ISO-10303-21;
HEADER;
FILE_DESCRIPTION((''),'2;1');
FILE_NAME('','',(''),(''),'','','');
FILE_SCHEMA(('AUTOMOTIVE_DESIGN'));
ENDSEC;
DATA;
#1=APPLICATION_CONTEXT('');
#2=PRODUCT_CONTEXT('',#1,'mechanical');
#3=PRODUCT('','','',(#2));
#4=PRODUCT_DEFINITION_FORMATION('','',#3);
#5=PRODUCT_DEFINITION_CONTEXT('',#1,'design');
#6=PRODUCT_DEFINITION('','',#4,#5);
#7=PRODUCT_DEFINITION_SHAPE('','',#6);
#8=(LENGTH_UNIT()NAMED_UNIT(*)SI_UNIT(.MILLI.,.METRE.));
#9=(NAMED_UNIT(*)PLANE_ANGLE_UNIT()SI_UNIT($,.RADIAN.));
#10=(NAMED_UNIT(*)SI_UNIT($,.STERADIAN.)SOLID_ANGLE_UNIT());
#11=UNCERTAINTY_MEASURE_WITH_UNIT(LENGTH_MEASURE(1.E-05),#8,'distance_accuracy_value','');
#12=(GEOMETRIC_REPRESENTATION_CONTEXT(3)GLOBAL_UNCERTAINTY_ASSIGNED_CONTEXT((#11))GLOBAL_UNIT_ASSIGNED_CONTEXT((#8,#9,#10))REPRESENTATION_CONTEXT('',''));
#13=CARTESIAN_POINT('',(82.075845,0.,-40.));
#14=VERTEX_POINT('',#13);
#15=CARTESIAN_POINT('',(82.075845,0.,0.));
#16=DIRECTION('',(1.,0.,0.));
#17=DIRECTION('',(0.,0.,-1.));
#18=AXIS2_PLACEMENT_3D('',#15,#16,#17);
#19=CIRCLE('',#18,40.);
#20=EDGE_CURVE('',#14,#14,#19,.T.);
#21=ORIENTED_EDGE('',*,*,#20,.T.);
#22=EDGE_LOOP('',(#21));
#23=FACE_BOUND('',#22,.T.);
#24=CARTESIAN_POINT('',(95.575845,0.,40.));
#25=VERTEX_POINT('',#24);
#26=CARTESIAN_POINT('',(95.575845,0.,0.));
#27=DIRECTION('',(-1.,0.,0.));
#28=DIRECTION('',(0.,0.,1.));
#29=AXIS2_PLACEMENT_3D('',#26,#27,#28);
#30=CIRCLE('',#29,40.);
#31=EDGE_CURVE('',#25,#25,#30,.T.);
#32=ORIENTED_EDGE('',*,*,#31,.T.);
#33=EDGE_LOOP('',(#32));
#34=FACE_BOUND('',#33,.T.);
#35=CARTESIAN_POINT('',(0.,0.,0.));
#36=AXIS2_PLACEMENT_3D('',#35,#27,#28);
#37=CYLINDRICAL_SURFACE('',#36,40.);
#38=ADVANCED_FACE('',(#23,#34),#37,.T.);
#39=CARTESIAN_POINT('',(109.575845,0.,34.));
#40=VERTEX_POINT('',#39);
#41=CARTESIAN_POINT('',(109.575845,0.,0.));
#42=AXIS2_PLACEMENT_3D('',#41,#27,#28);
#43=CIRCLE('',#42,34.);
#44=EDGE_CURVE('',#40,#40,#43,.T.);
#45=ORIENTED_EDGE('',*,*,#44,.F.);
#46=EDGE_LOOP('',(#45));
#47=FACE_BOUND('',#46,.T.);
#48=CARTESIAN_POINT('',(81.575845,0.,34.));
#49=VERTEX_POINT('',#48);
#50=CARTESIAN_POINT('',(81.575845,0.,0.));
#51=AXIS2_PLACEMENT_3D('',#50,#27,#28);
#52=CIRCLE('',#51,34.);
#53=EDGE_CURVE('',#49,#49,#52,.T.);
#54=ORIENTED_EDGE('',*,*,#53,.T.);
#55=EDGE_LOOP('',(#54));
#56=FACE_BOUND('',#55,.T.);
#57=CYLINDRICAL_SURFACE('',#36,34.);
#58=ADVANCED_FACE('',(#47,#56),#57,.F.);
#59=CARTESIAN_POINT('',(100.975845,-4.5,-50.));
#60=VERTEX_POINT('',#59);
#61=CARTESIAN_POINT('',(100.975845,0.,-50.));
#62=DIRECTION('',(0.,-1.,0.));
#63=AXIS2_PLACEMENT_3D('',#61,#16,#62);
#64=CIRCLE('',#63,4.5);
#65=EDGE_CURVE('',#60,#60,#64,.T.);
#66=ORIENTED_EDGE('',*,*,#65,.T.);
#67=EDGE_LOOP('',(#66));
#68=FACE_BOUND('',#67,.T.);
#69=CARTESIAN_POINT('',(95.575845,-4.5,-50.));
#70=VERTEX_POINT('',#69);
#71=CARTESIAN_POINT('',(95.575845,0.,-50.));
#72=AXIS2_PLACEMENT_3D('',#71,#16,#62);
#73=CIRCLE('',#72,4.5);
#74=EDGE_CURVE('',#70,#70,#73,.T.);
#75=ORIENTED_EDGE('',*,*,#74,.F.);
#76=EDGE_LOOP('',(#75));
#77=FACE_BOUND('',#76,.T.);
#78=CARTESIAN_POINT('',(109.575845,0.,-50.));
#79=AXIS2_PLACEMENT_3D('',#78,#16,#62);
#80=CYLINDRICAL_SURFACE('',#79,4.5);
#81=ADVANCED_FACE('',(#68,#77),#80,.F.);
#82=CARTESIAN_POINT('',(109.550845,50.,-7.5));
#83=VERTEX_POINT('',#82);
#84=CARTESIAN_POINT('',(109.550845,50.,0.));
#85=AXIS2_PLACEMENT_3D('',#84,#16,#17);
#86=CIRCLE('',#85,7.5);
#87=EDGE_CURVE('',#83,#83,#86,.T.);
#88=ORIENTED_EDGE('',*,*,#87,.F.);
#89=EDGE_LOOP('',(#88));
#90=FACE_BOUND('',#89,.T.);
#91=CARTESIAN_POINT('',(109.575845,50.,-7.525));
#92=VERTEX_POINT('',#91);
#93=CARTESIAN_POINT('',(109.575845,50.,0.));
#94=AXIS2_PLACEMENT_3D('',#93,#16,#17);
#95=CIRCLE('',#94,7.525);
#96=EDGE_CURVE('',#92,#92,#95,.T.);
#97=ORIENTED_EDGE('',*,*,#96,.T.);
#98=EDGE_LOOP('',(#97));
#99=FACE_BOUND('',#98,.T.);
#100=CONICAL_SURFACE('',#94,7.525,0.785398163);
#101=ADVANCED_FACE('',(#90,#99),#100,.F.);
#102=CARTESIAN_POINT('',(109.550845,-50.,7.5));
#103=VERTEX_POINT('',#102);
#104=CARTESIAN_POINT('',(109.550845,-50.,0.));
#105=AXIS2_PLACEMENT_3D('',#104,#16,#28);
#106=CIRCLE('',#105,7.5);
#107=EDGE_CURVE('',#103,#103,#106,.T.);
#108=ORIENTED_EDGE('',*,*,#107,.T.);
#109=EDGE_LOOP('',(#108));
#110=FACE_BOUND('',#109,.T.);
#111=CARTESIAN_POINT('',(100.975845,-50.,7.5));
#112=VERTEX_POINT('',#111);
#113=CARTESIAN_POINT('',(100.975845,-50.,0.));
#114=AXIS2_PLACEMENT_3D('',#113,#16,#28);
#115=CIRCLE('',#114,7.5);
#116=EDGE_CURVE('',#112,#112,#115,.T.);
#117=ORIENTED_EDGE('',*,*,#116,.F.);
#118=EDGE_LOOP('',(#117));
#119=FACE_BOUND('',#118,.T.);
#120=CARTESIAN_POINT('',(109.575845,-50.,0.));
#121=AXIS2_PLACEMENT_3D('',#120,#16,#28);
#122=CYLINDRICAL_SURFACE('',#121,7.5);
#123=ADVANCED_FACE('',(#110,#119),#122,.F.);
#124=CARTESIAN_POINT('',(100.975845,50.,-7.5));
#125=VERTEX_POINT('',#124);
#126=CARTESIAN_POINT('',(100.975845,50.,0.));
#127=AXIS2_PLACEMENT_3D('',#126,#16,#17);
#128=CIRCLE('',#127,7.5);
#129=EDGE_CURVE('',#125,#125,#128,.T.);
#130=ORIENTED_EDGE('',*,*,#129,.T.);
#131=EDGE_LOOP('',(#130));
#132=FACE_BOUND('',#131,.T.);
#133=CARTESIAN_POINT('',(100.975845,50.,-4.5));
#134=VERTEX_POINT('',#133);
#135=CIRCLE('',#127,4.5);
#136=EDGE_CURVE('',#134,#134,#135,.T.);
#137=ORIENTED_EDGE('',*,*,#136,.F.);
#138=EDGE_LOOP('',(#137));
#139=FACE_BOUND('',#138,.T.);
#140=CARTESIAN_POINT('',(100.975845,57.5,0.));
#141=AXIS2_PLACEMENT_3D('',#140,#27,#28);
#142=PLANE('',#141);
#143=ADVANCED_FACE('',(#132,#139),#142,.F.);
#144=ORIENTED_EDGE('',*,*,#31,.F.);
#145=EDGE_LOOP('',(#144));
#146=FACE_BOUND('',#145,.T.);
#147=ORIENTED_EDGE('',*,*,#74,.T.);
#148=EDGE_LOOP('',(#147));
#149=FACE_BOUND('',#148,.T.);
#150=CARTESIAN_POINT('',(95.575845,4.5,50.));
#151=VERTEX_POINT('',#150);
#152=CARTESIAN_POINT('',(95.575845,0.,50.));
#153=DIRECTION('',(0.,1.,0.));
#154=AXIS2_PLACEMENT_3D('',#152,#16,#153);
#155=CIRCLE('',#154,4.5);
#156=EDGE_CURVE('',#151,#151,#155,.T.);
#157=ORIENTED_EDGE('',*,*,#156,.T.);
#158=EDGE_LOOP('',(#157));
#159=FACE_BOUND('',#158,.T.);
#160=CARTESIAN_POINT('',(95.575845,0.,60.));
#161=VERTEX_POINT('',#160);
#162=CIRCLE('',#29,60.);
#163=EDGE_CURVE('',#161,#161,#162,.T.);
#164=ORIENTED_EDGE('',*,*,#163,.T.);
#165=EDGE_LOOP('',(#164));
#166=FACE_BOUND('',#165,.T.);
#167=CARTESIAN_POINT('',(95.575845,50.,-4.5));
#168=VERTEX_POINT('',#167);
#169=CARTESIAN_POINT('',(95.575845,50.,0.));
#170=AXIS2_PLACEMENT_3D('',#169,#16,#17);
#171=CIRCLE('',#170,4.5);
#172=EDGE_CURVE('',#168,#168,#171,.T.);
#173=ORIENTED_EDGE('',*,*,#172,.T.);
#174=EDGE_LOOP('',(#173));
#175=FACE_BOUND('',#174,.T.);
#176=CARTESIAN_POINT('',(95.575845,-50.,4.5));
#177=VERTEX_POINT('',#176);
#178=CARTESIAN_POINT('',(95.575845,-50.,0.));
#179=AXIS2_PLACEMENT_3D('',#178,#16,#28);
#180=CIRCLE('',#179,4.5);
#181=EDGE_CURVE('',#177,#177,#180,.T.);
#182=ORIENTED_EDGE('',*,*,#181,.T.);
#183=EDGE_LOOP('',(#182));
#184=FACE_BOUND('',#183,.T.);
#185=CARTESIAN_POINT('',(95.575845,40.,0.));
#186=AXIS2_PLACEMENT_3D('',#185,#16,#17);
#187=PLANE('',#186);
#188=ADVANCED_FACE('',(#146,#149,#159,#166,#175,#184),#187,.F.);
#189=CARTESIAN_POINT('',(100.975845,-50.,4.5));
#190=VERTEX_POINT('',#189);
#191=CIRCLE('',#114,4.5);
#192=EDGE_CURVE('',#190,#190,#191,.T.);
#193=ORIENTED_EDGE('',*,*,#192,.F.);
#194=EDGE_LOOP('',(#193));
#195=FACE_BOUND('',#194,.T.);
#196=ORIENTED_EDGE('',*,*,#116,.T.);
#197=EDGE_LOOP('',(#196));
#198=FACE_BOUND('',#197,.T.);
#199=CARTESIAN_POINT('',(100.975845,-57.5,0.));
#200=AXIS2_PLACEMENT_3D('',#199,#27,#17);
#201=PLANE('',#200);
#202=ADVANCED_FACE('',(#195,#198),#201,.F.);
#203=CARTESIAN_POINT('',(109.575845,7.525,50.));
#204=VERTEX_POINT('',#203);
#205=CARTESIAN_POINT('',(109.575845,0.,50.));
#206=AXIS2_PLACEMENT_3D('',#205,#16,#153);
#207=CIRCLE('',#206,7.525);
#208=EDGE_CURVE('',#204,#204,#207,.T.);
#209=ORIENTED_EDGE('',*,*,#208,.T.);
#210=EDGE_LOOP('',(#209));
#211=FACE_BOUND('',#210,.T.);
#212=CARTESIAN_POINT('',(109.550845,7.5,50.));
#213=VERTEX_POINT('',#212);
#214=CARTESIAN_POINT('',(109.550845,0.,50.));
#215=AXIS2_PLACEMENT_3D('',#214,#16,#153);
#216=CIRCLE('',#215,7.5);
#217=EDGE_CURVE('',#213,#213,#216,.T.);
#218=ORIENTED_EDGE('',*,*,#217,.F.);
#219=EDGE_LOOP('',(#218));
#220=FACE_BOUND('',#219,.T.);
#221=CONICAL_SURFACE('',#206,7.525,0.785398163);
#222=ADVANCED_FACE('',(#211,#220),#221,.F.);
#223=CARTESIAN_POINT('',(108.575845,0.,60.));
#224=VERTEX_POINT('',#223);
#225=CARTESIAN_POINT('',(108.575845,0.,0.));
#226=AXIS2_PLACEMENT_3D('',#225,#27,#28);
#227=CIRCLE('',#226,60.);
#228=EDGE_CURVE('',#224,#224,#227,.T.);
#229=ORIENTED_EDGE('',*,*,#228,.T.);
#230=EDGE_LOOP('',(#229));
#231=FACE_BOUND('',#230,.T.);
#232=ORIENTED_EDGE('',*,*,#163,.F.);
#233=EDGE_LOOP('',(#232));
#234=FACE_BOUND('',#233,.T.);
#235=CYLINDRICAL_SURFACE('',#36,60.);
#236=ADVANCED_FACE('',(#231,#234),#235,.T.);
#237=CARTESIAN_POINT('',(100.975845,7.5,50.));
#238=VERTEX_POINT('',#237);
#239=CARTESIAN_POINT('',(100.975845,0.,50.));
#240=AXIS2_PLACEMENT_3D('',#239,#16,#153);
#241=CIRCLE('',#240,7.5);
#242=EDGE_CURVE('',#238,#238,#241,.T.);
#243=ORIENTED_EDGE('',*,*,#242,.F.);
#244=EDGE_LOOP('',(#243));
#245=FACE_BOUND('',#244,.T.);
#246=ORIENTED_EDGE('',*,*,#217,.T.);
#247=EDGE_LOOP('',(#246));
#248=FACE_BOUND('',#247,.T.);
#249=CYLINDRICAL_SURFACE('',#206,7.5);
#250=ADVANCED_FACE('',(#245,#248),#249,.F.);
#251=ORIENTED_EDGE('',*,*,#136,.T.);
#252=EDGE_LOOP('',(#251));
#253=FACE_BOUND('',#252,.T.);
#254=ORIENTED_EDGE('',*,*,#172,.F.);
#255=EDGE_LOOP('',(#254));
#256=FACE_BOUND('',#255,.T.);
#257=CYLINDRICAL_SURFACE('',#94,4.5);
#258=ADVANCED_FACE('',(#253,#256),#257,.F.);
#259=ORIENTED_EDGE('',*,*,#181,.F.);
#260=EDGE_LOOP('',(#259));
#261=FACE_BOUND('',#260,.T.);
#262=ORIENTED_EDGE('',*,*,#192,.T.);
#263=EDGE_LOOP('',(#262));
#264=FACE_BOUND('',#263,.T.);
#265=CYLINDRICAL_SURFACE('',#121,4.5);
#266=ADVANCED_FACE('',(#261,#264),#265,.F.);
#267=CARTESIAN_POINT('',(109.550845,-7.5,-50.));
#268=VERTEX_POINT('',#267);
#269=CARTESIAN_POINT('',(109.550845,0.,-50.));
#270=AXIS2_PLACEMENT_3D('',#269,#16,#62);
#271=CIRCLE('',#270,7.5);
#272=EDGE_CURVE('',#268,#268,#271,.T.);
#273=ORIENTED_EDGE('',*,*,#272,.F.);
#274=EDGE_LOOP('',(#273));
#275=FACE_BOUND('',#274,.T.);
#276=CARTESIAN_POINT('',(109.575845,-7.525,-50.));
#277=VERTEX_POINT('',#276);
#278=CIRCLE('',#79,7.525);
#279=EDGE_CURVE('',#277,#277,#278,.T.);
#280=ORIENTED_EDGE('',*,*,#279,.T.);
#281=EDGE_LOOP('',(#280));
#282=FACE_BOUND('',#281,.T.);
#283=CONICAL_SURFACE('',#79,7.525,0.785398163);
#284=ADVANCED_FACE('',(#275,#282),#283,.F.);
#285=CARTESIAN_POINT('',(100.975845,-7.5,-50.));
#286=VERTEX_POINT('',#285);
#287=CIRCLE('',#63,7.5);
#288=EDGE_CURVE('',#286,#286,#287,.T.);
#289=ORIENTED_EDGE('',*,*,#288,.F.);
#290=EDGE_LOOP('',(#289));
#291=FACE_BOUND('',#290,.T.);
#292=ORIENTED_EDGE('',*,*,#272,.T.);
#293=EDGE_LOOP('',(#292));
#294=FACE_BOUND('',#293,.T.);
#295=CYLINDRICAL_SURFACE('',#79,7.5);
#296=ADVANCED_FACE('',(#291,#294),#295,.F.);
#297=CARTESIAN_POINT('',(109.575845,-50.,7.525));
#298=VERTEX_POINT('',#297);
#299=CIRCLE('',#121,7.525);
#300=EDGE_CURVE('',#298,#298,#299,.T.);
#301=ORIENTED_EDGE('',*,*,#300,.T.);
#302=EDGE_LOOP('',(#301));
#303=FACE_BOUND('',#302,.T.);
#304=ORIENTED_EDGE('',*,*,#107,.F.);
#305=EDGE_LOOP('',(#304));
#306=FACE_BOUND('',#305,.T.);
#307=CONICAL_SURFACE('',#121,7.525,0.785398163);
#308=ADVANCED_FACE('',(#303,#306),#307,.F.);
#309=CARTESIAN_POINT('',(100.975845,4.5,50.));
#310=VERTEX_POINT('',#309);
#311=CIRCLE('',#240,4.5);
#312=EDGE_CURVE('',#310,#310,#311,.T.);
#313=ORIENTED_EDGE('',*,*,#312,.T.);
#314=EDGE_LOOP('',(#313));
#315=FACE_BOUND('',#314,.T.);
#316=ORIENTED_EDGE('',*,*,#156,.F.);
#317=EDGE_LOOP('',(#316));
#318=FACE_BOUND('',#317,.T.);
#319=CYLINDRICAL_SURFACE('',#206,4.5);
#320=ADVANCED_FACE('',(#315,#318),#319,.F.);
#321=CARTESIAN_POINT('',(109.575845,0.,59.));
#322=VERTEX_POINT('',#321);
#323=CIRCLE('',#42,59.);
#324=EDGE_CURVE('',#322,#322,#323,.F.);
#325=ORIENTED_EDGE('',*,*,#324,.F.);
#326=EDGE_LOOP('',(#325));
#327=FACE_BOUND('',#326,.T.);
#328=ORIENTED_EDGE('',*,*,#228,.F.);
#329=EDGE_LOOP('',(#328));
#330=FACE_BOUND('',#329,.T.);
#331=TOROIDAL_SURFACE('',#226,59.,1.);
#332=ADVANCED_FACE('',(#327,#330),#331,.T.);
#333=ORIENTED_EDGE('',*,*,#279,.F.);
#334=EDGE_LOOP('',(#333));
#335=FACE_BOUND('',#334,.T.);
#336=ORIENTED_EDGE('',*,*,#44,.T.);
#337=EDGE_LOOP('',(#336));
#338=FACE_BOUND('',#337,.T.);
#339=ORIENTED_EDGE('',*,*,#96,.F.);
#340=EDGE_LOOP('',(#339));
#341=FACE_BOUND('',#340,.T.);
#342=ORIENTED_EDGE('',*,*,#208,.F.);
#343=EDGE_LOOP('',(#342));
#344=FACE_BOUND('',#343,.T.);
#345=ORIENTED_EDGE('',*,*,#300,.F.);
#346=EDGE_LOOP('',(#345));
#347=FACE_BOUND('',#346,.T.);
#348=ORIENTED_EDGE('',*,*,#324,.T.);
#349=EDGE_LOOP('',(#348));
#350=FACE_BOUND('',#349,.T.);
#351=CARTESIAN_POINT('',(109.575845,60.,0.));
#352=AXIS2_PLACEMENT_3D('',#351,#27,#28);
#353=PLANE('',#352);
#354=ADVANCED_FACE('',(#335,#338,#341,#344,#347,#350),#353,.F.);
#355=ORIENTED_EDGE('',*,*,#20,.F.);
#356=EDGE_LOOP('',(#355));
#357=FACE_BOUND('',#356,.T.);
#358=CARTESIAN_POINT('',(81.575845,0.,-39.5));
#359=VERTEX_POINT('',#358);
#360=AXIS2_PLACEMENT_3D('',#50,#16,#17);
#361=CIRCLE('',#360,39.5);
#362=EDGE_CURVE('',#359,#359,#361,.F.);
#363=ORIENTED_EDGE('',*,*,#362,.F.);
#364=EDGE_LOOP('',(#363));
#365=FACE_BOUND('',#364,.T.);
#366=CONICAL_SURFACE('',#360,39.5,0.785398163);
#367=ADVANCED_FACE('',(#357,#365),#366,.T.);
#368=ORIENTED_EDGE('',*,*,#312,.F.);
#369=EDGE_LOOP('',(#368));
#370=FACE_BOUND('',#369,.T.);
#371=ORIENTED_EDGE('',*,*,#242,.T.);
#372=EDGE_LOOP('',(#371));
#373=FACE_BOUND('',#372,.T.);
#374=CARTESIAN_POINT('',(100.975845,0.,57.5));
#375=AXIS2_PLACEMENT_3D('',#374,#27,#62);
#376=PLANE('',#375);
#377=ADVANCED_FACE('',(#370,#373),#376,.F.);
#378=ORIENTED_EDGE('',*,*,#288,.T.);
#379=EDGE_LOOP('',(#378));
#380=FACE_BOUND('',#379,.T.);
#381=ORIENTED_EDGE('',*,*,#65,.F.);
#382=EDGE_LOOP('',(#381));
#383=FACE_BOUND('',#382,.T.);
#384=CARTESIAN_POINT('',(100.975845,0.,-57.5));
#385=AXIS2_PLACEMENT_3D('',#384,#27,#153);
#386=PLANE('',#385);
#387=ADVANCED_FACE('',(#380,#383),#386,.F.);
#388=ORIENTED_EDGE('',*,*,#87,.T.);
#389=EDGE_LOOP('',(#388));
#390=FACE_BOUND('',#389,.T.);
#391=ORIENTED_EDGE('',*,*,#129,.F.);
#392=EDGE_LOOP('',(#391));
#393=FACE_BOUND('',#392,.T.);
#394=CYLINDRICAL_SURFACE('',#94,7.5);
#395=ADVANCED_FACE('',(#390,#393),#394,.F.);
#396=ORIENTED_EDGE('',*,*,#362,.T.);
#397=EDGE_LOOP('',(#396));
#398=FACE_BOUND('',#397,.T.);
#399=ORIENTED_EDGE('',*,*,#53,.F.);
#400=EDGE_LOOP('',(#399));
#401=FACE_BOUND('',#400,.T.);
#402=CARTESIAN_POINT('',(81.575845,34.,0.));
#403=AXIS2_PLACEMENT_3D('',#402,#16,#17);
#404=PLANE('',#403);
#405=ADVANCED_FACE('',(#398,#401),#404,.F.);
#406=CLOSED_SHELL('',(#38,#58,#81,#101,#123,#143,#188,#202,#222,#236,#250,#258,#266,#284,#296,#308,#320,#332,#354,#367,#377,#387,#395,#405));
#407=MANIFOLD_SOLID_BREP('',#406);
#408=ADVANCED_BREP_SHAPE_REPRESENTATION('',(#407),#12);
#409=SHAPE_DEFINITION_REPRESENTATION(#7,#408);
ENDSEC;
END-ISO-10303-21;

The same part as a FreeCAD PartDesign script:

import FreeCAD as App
import Part
import Sketcher
Q = App.Units.Quantity


def edges_at(feature, points):
    """Names of the edges that pass closest to the given points."""
    edges = feature.Shape.Edges
    near = lambda p: min(range(len(edges)), key=lambda i: edges[i].distToShape(Part.Vertex(*p))[0])
    return sorted({f"Edge{near(p) + 1}" for p in points})


def add_polygon(sketch, points):
    """Adds a closed chain of lines whose ends are joined by coincident constraints."""
    first, n = sketch.GeometryCount, len(points)
    for a, b in zip(points, points[1:] + points[:1]):
        sketch.addGeometry(Part.LineSegment(App.Vector(*a, 0), App.Vector(*b, 0)), False)
    for i in range(n):
        sketch.addConstraint(Sketcher.Constraint("Coincident", first + i, 2, first + (i + 1) % n, 1))

doc = App.newDocument("Part")
params = doc.addObject("Spreadsheet::Sheet", "Params")
for row, (alias, value) in enumerate([
    ("sketch1_width", "14 mm"),
    ("sketch1_height", "6 mm"),
    ("sketch1_height2", "26 mm"),
    ("revolution_angle", "360 deg"),
    ("fillet_radius", "1 mm"),
    ("chamfer_size", "0.5 mm"),
    ("sketch2_width", "28 mm"),
    ("sketch2_height", "3 mm"),
    ("sketch2_width2", "19.4 mm"),
    ("sketch2_height2", "4.5 mm"),
    ("groove_angle", "360 deg"),
], start=1):
    params.set(f"A{row}", alias)
    params.set(f"B{row}", "=" + value)
    params.setAlias(f"B{row}", alias)

body = doc.addObject("PartDesign::Body", "Body")

# Sketch on XY plane
sketch1 = body.newObject("Sketcher::SketchObject", "Sketch")
sketch1.AttachmentSupport = (doc.getObject("XY_Plane"), [""])
sketch1.MapMode = "FlatFace"
add_polygon(sketch1, [(96, 40), (82, 40), (82, 34), (110, 34), (110, 60), (96, 60)])  # lines 0-5
sketch1.addConstraint([
    Sketcher.Constraint("Horizontal", 0),
    Sketcher.Constraint("Vertical", 1),
    Sketcher.Constraint("Horizontal", 2),
    Sketcher.Constraint("Vertical", 3),
    Sketcher.Constraint("Horizontal", 4),
    Sketcher.Constraint("Vertical", 5),
    Sketcher.Constraint("Equal", 0, 4),
    Sketcher.Constraint("DistanceX", 0, 2, 0, 1, 14.0),
    Sketcher.Constraint("DistanceY", 1, 2, 1, 1, 6.0),
    Sketcher.Constraint("DistanceY", 3, 1, 3, 2, 26.0),
    Sketcher.Constraint("DistanceY", -1, 1, 0, 2, 40.0),
    Sketcher.Constraint("DistanceX", -1, 1, 0, 2, 81.575845),
])
sketch1.setExpression("Constraints[13]", "Params.sketch1_width")
sketch1.setExpression("Constraints[14]", "Params.sketch1_height")
sketch1.setExpression("Constraints[15]", "Params.sketch1_height2")
revolution = body.newObject("PartDesign::Revolution", "Revolution")
revolution.Profile = sketch1
revolution.ReferenceAxis = (sketch1, ["H_Axis"])
revolution.setExpression("Angle", "Params.revolution_angle")
doc.recompute()

fillet = body.newObject("PartDesign::Fillet", "Fillet")
fillet.Base = (revolution, edges_at(revolution, [(109.576, 0, -60)]))
fillet.setExpression("Radius", "Params.fillet_radius")
doc.recompute()

chamfer = body.newObject("PartDesign::Chamfer", "Chamfer")
chamfer.Base = (fillet, edges_at(fillet, [(81.576, 0, -40)]))
chamfer.setExpression("Size", "Params.chamfer_size")

# Sketch on XZ plane
sketch2 = body.newObject("Sketcher::SketchObject", "Sketch001")
sketch2.AttachmentSupport = (doc.getObject("XZ_Plane"), [""])
sketch2.MapMode = "FlatFace"
sketch2.AttachmentOffset = App.Placement(App.Vector(0, 0, -50), App.Rotation())
add_polygon(sketch2, [(81.576, 0), (109.576, 0), (109.576, -7.525), (109.551, -7.5), (100.976, -7.5), (100.976, -4.5), (81.576, -4.5)])  # lines 0-6
sketch2.addConstraint([
    Sketcher.Constraint("Horizontal", 0),
    Sketcher.Constraint("Vertical", 1),
    Sketcher.Constraint("Horizontal", 3),
    Sketcher.Constraint("Vertical", 4),
    Sketcher.Constraint("Horizontal", 5),
    Sketcher.Constraint("Vertical", 6),
    Sketcher.Constraint("PointOnObject", 0, 2, -1),
    Sketcher.Constraint("DistanceX", 0, 1, 0, 2, 28.0),
    Sketcher.Constraint("DistanceY", 4, 1, 4, 2, 3.0),
    Sketcher.Constraint("Angle", 2, Q("135 deg")),
    Sketcher.Constraint("DistanceX", 5, 2, 5, 1, 19.4),
    Sketcher.Constraint("DistanceY", 6, 1, 6, 2, 4.5),
    Sketcher.Constraint("DistanceX", 3, 2, 3, 1, 8.575),
    Sketcher.Constraint("DistanceX", -1, 1, 0, 2, 109.575845),
])
sketch2.setExpression("Constraints[14]", "Params.sketch2_width")
sketch2.setExpression("Constraints[15]", "Params.sketch2_height")
sketch2.setExpression("Constraints[17]", "Params.sketch2_width2")
sketch2.setExpression("Constraints[18]", "Params.sketch2_height2")
groove = body.newObject("PartDesign::Groove", "Groove")
groove.Profile = sketch2
groove.ReferenceAxis = (sketch2, ["H_Axis"])
groove.setExpression("Angle", "Params.groove_angle")
doc.recompute()

polarpattern = body.newObject("PartDesign::PolarPattern", "PolarPattern")
polarpattern.Originals = [groove]
polarpattern.Axis = (doc.getObject("X_Axis"), [""])
polarpattern.Angle = 360
polarpattern.Occurrences = 4
body.Tip = polarpattern

doc.recompute()
